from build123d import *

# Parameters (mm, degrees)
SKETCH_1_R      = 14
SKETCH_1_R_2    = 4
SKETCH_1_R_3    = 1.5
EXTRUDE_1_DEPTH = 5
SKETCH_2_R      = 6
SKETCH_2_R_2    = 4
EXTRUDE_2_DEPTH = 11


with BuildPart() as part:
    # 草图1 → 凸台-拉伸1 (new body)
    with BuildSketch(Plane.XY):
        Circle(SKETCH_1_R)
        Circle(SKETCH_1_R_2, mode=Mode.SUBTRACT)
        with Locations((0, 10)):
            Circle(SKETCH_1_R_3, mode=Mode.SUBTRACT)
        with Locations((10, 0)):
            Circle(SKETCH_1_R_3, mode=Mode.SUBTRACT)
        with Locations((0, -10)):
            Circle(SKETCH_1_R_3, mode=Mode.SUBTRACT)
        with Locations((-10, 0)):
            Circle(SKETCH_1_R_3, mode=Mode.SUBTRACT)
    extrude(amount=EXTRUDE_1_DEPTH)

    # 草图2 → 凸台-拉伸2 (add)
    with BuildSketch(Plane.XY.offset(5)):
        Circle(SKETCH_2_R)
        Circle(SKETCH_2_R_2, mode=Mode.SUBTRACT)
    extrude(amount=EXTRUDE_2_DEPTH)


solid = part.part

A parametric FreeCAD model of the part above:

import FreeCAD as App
import Part
import Sketcher
from FreeCAD import Vector

doc = App.newDocument("Part")
body = doc.addObject("PartDesign::Body", "Body")

# Sketch on XY plane
sketch1 = body.newObject("Sketcher::SketchObject", "Sketch")
sketch1.AttachmentSupport = (doc.getObject("XY_Plane"), [""])
sketch1.MapMode = "FlatFace"
sketch1.addGeometry(Part.Circle(Vector(0, 0, 0), Vector(0, 0, 1), 14), False)
sketch1.addGeometry(Part.Circle(Vector(0, -10, 0), Vector(0, 0, 1), 1.5), False)
sketch1.addGeometry(Part.Circle(Vector(-10, 0, 0), Vector(0, 0, 1), 1.5), False)
sketch1.addGeometry(Part.Circle(Vector(0, 0, 0), Vector(0, 0, 1), 4), False)
sketch1.addGeometry(Part.Circle(Vector(10, 0, 0), Vector(0, 0, 1), 1.5), False)
sketch1.addGeometry(Part.Circle(Vector(0, 10, 0), Vector(0, 0, 1), 1.5), False)
sketch1.addConstraint(Sketcher.Constraint("Coincident", 0, 3, -1, 1))
sketch1.addConstraint(Sketcher.Constraint("Coincident", 3, 3, -1, 1))
sketch1.addConstraint(Sketcher.Constraint("Equal", 1, 2))
sketch1.addConstraint(Sketcher.Constraint("Equal", 2, 4))
sketch1.addConstraint(Sketcher.Constraint("Equal", 4, 5))
sketch1.addConstraint(Sketcher.Constraint("Symmetric", 2, 3, 4, 3, -1, 1))
sketch1.addConstraint(Sketcher.Constraint("Symmetric", 1, 3, 5, 3, -1, 1))
sketch1.addConstraint(Sketcher.Constraint("PointOnObject", 1, 3, -2))
sketch1.addConstraint(Sketcher.Constraint("PointOnObject", 2, 3, -1))
sketch1.addConstraint(Sketcher.Constraint("Diameter", 0, 28.0))
sketch1.addConstraint(Sketcher.Constraint("Diameter", 1, 3.0))
sketch1.addConstraint(Sketcher.Constraint("Diameter", 3, 8.0))
sketch1.addConstraint(Sketcher.Constraint("DistanceY", 1, 3, -1, 1, 10.0))
sketch1.addConstraint(Sketcher.Constraint("DistanceX", 2, 3, -1, 1, 10.0))
pad1 = body.newObject("PartDesign::Pad", "Pad")
pad1.Profile = sketch1
pad1.Length = 5

# Sketch on XY plane
sketch2 = body.newObject("Sketcher::SketchObject", "Sketch001")
sketch2.AttachmentSupport = (doc.getObject("XY_Plane"), [""])
sketch2.MapMode = "FlatFace"
sketch2.AttachmentOffset = App.Placement(Vector(0, 0, 5), App.Rotation())
sketch2.addGeometry(Part.Circle(Vector(0, 0, 0), Vector(0, 0, 1), 6), False)
sketch2.addGeometry(Part.Circle(Vector(0, 0, 0), Vector(0, 0, 1), 4), False)
sketch2.addConstraint(Sketcher.Constraint("Coincident", 0, 3, -1, 1))
sketch2.addConstraint(Sketcher.Constraint("Coincident", 1, 3, -1, 1))
sketch2.addConstraint(Sketcher.Constraint("Diameter", 0, 12.0))
sketch2.addConstraint(Sketcher.Constraint("Diameter", 1, 8.0))
pad2 = body.newObject("PartDesign::Pad", "Pad001")
pad2.Profile = sketch2
pad2.Length = 11

doc.recompute()
